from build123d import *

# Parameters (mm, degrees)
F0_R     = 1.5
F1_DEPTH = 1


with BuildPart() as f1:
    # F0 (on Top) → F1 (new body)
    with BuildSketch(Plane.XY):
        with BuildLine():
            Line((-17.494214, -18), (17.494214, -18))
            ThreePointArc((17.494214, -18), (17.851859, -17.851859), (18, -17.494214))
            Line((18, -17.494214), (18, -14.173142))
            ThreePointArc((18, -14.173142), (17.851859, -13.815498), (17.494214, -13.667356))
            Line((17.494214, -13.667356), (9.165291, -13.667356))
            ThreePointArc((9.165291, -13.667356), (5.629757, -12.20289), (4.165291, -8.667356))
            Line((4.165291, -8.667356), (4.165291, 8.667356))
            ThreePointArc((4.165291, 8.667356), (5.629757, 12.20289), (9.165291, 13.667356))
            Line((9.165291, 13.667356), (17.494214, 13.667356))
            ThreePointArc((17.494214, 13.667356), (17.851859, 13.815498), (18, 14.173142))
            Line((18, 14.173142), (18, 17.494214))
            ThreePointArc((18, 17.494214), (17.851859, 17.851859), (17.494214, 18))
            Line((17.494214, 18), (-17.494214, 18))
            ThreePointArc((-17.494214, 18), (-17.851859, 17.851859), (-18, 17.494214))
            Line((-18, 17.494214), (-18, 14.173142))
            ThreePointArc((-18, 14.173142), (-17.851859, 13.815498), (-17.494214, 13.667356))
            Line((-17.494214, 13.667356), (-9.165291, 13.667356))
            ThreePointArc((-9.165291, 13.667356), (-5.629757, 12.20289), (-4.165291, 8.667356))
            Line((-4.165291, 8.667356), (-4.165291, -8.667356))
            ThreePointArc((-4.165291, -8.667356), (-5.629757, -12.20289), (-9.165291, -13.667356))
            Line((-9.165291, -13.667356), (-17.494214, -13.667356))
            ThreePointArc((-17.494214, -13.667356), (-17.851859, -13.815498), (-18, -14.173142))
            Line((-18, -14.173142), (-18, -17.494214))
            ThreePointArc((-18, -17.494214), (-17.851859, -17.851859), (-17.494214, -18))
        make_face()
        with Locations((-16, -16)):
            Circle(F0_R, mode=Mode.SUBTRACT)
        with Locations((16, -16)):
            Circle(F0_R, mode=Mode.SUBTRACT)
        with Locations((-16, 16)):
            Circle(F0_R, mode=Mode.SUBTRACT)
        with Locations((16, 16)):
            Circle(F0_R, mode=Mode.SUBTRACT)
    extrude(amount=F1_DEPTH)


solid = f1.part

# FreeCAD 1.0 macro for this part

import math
import FreeCAD as App
import Part
import Sketcher
from FreeCAD import Vector
Q = App.Units.Quantity

doc = App.newDocument("Part")
body = doc.addObject("PartDesign::Body", "Body")

# Sketch on XY plane
sketch1 = body.newObject("Sketcher::SketchObject", "Sketch")
sketch1.AttachmentSupport = (doc.getObject("XY_Plane"), [""])
sketch1.MapMode = "FlatFace"
sketch1.addGeometry([
    Part.LineSegment(Vector(-17.5, -18, 0), Vector(17.5, -18, 0)),  # 0
    Part.ArcOfCircle(Part.Circle(Vector(17.5, -17.5, 0), Vector(0, 0, 1), 0.5), math.radians(-90), math.radians(0)),  # 1
    Part.LineSegment(Vector(18, -17.5, 0), Vector(18, -14.2, 0)),  # 2
    Part.ArcOfCircle(Part.Circle(Vector(17.5, -14.2, 0), Vector(0, 0, 1), 0.5), math.radians(0), math.radians(90)),  # 3
    Part.LineSegment(Vector(17.5, -13.7, 0), Vector(9.2, -13.7, 0)),  # 4
    Part.ArcOfCircle(Part.Circle(Vector(9.2, -8.7, 0), Vector(0, 0, 1), 5), math.radians(180), math.radians(270)),  # 5
    Part.LineSegment(Vector(4.2, -8.7, 0), Vector(4.2, 8.7, 0)),  # 6
    Part.ArcOfCircle(Part.Circle(Vector(9.2, 8.7, 0), Vector(0, 0, 1), 5), math.radians(90), math.radians(180)),  # 7
    Part.LineSegment(Vector(9.2, 13.7, 0), Vector(17.5, 13.7, 0)),  # 8
    Part.ArcOfCircle(Part.Circle(Vector(17.5, 14.2, 0), Vector(0, 0, 1), 0.5), math.radians(-90), math.radians(0)),  # 9
    Part.LineSegment(Vector(18, 14.2, 0), Vector(18, 17.5, 0)),  # 10
    Part.ArcOfCircle(Part.Circle(Vector(17.5, 17.5, 0), Vector(0, 0, 1), 0.5), math.radians(0), math.radians(90)),  # 11
    Part.LineSegment(Vector(17.5, 18, 0), Vector(-17.5, 18, 0)),  # 12
    Part.ArcOfCircle(Part.Circle(Vector(-17.5, 17.5, 0), Vector(0, 0, 1), 0.5), math.radians(90), math.radians(180)),  # 13
    Part.LineSegment(Vector(-18, 17.5, 0), Vector(-18, 14.2, 0)),  # 14
    Part.ArcOfCircle(Part.Circle(Vector(-17.5, 14.2, 0), Vector(0, 0, 1), 0.5), math.radians(-180), math.radians(-90)),  # 15
    Part.LineSegment(Vector(-17.5, 13.7, 0), Vector(-9.2, 13.7, 0)),  # 16
    Part.ArcOfCircle(Part.Circle(Vector(-9.2, 8.7, 0), Vector(0, 0, 1), 5), math.radians(0), math.radians(90)),  # 17
    Part.LineSegment(Vector(-4.2, 8.7, 0), Vector(-4.2, -8.7, 0)),  # 18
    Part.ArcOfCircle(Part.Circle(Vector(-9.2, -8.7, 0), Vector(0, 0, 1), 5), math.radians(-90), math.radians(0)),  # 19
    Part.LineSegment(Vector(-9.2, -13.7, 0), Vector(-17.5, -13.7, 0)),  # 20
    Part.ArcOfCircle(Part.Circle(Vector(-17.5, -14.2, 0), Vector(0, 0, 1), 0.5), math.radians(90), math.radians(180)),  # 21
    Part.LineSegment(Vector(-18, -14.2, 0), Vector(-18, -17.5, 0)),  # 22
    Part.ArcOfCircle(Part.Circle(Vector(-17.5, -17.5, 0), Vector(0, 0, 1), 0.5), math.radians(180), math.radians(270)),  # 23
    Part.Circle(Vector(-16, -16, 0), Vector(0, 0, 1), 1.5),  # 24
    Part.Circle(Vector(16, -16, 0), Vector(0, 0, 1), 1.5),  # 25
    Part.Circle(Vector(-16, 16, 0), Vector(0, 0, 1), 1.5),  # 26
    Part.Circle(Vector(16, 16, 0), Vector(0, 0, 1), 1.5),  # 27
], False)
sketch1.addConstraint([
    Sketcher.Constraint("Tangent", 0, 2, 1, 1),
    Sketcher.Constraint("Tangent", 1, 2, 2, 1),
    Sketcher.Constraint("Tangent", 2, 2, 3, 1),
    Sketcher.Constraint("Tangent", 3, 2, 4, 1),
    Sketcher.Constraint("Tangent", 4, 2, 5, 2),
    Sketcher.Constraint("Tangent", 5, 1, 6, 1),
    Sketcher.Constraint("Tangent", 6, 2, 7, 2),
    Sketcher.Constraint("Tangent", 7, 1, 8, 1),
    Sketcher.Constraint("Tangent", 8, 2, 9, 1),
    Sketcher.Constraint("Tangent", 9, 2, 10, 1),
    Sketcher.Constraint("Tangent", 10, 2, 11, 1),
    Sketcher.Constraint("Tangent", 11, 2, 12, 1),
    Sketcher.Constraint("Tangent", 12, 2, 13, 1),
    Sketcher.Constraint("Tangent", 13, 2, 14, 1),
    Sketcher.Constraint("Tangent", 14, 2, 15, 1),
    Sketcher.Constraint("Tangent", 15, 2, 16, 1),
    Sketcher.Constraint("Tangent", 16, 2, 17, 2),
    Sketcher.Constraint("Tangent", 17, 1, 18, 1),
    Sketcher.Constraint("Tangent", 18, 2, 19, 2),
    Sketcher.Constraint("Tangent", 19, 1, 20, 1),
    Sketcher.Constraint("Tangent", 20, 2, 21, 1),
    Sketcher.Constraint("Tangent", 21, 2, 22, 1),
    Sketcher.Constraint("Tangent", 22, 2, 23, 1),
    Sketcher.Constraint("Tangent", 23, 2, 0, 1),
    Sketcher.Constraint("Horizontal", 0),
    Sketcher.Constraint("Vertical", 2),
    Sketcher.Constraint("Horizontal", 4),
    Sketcher.Constraint("Vertical", 6),
    Sketcher.Constraint("Horizontal", 8),
    Sketcher.Constraint("Vertical", 10),
    Sketcher.Constraint("Horizontal", 12),
    Sketcher.Constraint("Vertical", 14),
    Sketcher.Constraint("Horizontal", 16),
    Sketcher.Constraint("Vertical", 18),
    Sketcher.Constraint("Horizontal", 20),
    Sketcher.Constraint("Vertical", 22),
    Sketcher.Constraint("Equal", 1, 3),
    Sketcher.Constraint("Equal", 5, 7),
    Sketcher.Constraint("Equal", 3, 9),
    Sketcher.Constraint("Equal", 9, 11),
    Sketcher.Constraint("Equal", 11, 13),
    Sketcher.Constraint("Equal", 13, 15),
    Sketcher.Constraint("Equal", 7, 17),
    Sketcher.Constraint("Equal", 17, 19),
    Sketcher.Constraint("Equal", 15, 21),
    Sketcher.Constraint("Equal", 21, 23),
    Sketcher.Constraint("Equal", 24, 25),
    Sketcher.Constraint("Equal", 25, 26),
    Sketcher.Constraint("Equal", 26, 27),
    Sketcher.Constraint("Symmetric", 1, 3, 13, 3, -1, 1),
    Sketcher.Constraint("Symmetric", 5, 3, 17, 3, -1, 1),
    Sketcher.Constraint("Symmetric", 9, 3, 21, 3, -1, 1),
    Sketcher.Constraint("Symmetric", 25, 3, 26, 3, -1, 1),
    Sketcher.Constraint("Symmetric", 24, 3, 27, 3, -1, 1),
    Sketcher.Constraint("Symmetric", 9, 3, 15, 3, -2),
    Sketcher.Constraint("Symmetric", 24, 3, 25, 3, -2),
    Sketcher.Constraint("Diameter", 24, Q("3 mm")),
    Sketcher.Constraint("Radius", 5, Q("5 mm")),
    Sketcher.Constraint("DistanceX", 24, 3, -1, 1, Q("16 mm")),
    Sketcher.Constraint("DistanceY", 24, 3, -1, 1, Q("16 mm")),
    Sketcher.Constraint("DistanceY", 0, 2, -1, 1, Q("18 mm")),
    Sketcher.Constraint("DistanceX", -1, 1, 1, 2, Q("18 mm")),
    Sketcher.Constraint("Radius", 1, Q("0.505785 mm")),
    Sketcher.Constraint("DistanceY", 2, 1, 2, 2, Q("3.321072 mm")),
    Sketcher.Constraint("DistanceX", 4, 2, 4, 1, Q("8.328923 mm")),
])
pad1 = body.newObject("PartDesign::Pad", "Pad")
pad1.Profile = sketch1
pad1.Length = 1

doc.recompute()
